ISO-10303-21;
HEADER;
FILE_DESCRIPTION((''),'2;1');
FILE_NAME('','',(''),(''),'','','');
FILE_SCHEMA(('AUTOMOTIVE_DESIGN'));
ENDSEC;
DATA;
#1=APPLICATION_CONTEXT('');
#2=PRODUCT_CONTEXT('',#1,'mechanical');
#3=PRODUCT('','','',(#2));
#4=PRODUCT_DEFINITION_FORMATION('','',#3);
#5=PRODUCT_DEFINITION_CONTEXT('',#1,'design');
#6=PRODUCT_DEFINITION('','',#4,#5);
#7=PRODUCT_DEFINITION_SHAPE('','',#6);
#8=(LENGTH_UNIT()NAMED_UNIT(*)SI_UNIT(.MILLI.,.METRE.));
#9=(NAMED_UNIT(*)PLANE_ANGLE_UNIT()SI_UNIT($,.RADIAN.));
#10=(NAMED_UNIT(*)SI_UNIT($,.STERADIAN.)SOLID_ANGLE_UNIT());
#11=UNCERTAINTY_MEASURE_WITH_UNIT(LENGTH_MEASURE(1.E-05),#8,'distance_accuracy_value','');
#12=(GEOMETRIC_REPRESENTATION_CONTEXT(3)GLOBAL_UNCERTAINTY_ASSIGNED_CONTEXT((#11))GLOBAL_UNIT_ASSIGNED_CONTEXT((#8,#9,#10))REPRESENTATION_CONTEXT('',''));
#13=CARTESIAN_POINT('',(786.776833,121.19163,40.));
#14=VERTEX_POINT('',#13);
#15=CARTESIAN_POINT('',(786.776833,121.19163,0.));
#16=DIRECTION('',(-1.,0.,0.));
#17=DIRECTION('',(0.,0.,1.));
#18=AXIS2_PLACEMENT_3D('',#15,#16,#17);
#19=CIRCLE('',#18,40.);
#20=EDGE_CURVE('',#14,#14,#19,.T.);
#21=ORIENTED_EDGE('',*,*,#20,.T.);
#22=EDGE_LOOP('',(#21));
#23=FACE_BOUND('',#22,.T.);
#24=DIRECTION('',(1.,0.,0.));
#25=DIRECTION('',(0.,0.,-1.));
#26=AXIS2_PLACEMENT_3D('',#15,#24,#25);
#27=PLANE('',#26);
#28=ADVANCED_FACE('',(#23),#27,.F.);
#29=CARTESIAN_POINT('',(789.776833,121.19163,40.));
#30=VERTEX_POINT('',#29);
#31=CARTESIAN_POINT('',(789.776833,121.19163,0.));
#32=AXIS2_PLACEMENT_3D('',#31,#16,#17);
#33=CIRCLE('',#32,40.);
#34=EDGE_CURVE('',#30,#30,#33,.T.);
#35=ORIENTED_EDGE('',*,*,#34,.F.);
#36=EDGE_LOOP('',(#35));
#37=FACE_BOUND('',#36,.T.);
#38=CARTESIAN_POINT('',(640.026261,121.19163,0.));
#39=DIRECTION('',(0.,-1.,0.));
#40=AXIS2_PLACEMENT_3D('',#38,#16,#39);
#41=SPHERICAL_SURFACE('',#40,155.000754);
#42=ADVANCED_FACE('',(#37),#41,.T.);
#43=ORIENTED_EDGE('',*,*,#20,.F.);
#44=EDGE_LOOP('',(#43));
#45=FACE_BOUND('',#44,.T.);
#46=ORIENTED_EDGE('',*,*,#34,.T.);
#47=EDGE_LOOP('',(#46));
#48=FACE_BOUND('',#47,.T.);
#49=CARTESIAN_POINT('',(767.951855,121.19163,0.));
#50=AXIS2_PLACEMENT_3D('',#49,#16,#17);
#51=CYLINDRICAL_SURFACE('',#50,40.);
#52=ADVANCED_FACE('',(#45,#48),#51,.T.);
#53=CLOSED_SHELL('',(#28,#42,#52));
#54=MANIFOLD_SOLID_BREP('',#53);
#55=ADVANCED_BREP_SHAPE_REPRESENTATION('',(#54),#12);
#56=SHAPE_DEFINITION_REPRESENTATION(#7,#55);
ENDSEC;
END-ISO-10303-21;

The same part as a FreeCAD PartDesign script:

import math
import FreeCAD as App
import Part
import Sketcher
from FreeCAD import Vector

doc = App.newDocument("Part")
body = doc.addObject("PartDesign::Body", "Body")

# Sketch on XY plane
sketch1 = doc.addObject("Sketcher::SketchObject", "Sketch")
body.addObject(sketch1)
sketch1.AttachmentSupport = (doc.XY_Plane, [""])
sketch1.MapMode = "FlatFace"
sketch1.addGeometry([
    Part.LineSegment(Vector(786.776833, 161.19163, 0), Vector(786.776833, 121.19163, 0)),
    Part.LineSegment(Vector(786.776833, 121.19163, 0), Vector(795.027015, 121.19163, 0)),
    Part.ArcOfCircle(Part.Circle(Vector(640.026261, 121.19163, 0), Vector(0, 0, 1), 155.000754), math.radians(0), math.radians(14.955174)),
    Part.LineSegment(Vector(789.776833, 161.19163, 0), Vector(786.776833, 161.19163, 0)),
], False)
sketch1.addGeometry(Part.LineSegment(Vector(640.026261, 121.19163, 0), Vector(795.027015, 121.19163, 0)), True)  # axis
sketch1.addConstraint([
    Sketcher.Constraint("Coincident", 0, 2, 1, 1),
    Sketcher.Constraint("Coincident", 1, 2, 2, 1),
    Sketcher.Constraint("Coincident", 2, 2, 3, 1),
    Sketcher.Constraint("Coincident", 3, 2, 0, 1),
    Sketcher.Constraint("Vertical", 0),
    Sketcher.Constraint("Horizontal", 1),
    Sketcher.Constraint("Horizontal", 3),
    Sketcher.Constraint("Horizontal", 4),
    Sketcher.Constraint("Coincident", 4, 1, 2, 3),
    Sketcher.Constraint("Coincident", 4, 2, 1, 2),
    Sketcher.Constraint("DistanceX", 3, 2, 3, 1, 3.0),
    Sketcher.Constraint("DistanceY", 0, 2, 0, 1, 40.0),
    Sketcher.Constraint("Radius", 2, 155.000754),
    Sketcher.Constraint("DistanceX", -1, 1, 2, 3, 640.026261),
    Sketcher.Constraint("DistanceY", -1, 1, 2, 3, 121.19163),
])
revolution = doc.addObject("PartDesign::Revolution", "Revolution")
body.addObject(revolution)
revolution.Profile = sketch1
revolution.ReferenceAxis = (sketch1, ["Axis0"])
revolution.Angle = 360

doc.recompute()
